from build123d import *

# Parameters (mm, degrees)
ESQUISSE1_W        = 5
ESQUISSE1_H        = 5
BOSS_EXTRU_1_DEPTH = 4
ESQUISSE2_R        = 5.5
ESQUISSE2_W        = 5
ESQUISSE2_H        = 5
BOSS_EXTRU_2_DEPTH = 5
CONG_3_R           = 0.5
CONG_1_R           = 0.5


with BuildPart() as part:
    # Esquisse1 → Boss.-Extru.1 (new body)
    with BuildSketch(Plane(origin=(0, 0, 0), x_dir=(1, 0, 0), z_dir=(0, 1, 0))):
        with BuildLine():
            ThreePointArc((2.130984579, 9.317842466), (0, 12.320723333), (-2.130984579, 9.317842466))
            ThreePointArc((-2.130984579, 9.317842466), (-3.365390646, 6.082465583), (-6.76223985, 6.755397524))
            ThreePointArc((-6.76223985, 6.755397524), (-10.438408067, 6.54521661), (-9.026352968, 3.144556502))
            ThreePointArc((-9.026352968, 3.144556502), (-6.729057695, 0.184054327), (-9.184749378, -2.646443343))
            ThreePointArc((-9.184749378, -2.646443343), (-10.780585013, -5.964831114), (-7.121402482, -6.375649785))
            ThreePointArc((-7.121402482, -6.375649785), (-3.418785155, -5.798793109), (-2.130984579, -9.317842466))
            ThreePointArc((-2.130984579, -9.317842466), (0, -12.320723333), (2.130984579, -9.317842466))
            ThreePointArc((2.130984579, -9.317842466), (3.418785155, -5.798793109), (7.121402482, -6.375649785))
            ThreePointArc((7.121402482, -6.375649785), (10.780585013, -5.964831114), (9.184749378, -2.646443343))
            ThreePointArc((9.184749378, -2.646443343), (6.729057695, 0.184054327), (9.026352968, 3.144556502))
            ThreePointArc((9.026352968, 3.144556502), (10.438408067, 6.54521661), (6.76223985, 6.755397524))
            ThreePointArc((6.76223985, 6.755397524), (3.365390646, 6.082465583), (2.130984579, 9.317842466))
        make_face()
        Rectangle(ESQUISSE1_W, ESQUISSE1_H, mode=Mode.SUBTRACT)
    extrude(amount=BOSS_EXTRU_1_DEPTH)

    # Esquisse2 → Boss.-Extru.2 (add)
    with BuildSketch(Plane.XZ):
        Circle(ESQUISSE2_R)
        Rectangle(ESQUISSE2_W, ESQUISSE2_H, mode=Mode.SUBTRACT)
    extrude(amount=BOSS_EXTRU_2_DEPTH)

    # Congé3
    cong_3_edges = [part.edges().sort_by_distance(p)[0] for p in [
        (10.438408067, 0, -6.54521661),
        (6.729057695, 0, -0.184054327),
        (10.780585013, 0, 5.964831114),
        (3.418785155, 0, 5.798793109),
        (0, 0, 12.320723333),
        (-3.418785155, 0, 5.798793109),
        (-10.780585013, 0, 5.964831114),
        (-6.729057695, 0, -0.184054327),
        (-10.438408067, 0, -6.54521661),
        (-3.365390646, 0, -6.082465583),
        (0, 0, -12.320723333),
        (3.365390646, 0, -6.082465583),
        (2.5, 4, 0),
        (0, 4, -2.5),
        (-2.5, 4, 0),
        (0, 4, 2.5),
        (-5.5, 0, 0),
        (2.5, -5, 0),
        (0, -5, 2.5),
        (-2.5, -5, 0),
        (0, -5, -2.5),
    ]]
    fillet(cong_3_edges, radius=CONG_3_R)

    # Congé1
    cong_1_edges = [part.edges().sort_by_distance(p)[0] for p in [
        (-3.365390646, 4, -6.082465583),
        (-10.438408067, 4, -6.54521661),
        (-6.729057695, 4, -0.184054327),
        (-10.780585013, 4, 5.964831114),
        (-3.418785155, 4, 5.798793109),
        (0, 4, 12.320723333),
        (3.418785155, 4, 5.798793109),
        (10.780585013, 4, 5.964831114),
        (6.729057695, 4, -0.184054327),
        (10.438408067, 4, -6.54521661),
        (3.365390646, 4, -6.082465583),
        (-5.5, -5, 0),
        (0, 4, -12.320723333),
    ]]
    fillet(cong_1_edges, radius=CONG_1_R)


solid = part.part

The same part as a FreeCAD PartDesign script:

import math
import FreeCAD as App
import Part
import Sketcher
from FreeCAD import Vector


def edges_at(feature, points):
    """Names of the edges that pass closest to the given points."""
    edges = feature.Shape.Edges
    near = lambda p: min(range(len(edges)), key=lambda i: edges[i].distToShape(Part.Vertex(*p))[0])
    return sorted({f"Edge{near(p) + 1}" for p in points})


def add_polygon(sketch, points):
    """Adds a closed chain of lines whose ends are joined by coincident constraints."""
    first, n = sketch.GeometryCount, len(points)
    for a, b in zip(points, points[1:] + points[:1]):
        sketch.addGeometry(Part.LineSegment(App.Vector(*a, 0), App.Vector(*b, 0)), False)
    for i in range(n):
        sketch.addConstraint(Sketcher.Constraint("Coincident", first + i, 2, first + (i + 1) % n, 1))

doc = App.newDocument("Part")
body = doc.addObject("PartDesign::Body", "Body")

sketch1 = body.newObject("Sketcher::SketchObject", "Sketch")
sketch1.AttachmentSupport = (doc.getObject("XZ_Plane"), [""])
sketch1.MapMode = "FlatFace"
sketch1.addGeometry(Part.ArcOfCircle(Part.Circle(Vector(0, -10.1, 0), Vector(0, 0, 1), 2.3), math.radians(161), math.radians(379)), False)
sketch1.addGeometry(Part.ArcOfCircle(Part.Circle(Vector(-4.7, -8.4, 0), Vector(0, 0, 1), 2.7), math.radians(-19), math.radians(141)), False)
sketch1.addGeometry(Part.ArcOfCircle(Part.Circle(Vector(-8.5, -5.3, 0), Vector(0, 0, 1), 2.3), math.radians(103), math.radians(321)), False)
sketch1.addGeometry(Part.ArcOfCircle(Part.Circle(Vector(-9.7, -0.3, 0), Vector(0, 0, 1), 3), math.radians(-77), math.radians(80)), False)
sketch1.addGeometry(Part.ArcOfCircle(Part.Circle(Vector(-8.8, 4.9, 0), Vector(0, 0, 1), 2.3), math.radians(42), math.radians(260)), False)
sketch1.addGeometry(Part.ArcOfCircle(Part.Circle(Vector(-4.9, 8.3, 0), Vector(0, 0, 1), 3), math.radians(-138), math.radians(19)), False)
sketch1.addGeometry(Part.ArcOfCircle(Part.Circle(Vector(0, 10.1, 0), Vector(0, 0, 1), 2.3), math.radians(-19), math.radians(199)), False)
sketch1.addGeometry(Part.ArcOfCircle(Part.Circle(Vector(4.9, 8.3, 0), Vector(0, 0, 1), 3), math.radians(161), math.radians(318)), False)
sketch1.addGeometry(Part.ArcOfCircle(Part.Circle(Vector(8.8, 4.9, 0), Vector(0, 0, 1), 2.3), math.radians(-80), math.radians(138)), False)
sketch1.addGeometry(Part.ArcOfCircle(Part.Circle(Vector(9.7, -0.3, 0), Vector(0, 0, 1), 3), math.radians(100), math.radians(257)), False)
sketch1.addGeometry(Part.ArcOfCircle(Part.Circle(Vector(8.5, -5.3, 0), Vector(0, 0, 1), 2.3), math.radians(-141), math.radians(77)), False)
sketch1.addGeometry(Part.ArcOfCircle(Part.Circle(Vector(4.7, -8.4, 0), Vector(0, 0, 1), 2.7), math.radians(39), math.radians(199)), False)
add_polygon(sketch1, [(2.5, 2.5), (-2.5, 2.5), (-2.5, -2.5), (2.5, -2.5)])
sketch1.addConstraint([
    Sketcher.Constraint("Tangent", 0, 1, 1, 1),
    Sketcher.Constraint("Tangent", 1, 2, 2, 2),
    Sketcher.Constraint("Tangent", 2, 1, 3, 1),
    Sketcher.Constraint("Tangent", 3, 2, 4, 2),
    Sketcher.Constraint("Tangent", 4, 1, 5, 1),
    Sketcher.Constraint("Tangent", 5, 2, 6, 2),
    Sketcher.Constraint("Tangent", 6, 1, 7, 1),
    Sketcher.Constraint("Tangent", 7, 2, 8, 2),
    Sketcher.Constraint("Tangent", 8, 1, 9, 1),
    Sketcher.Constraint("Tangent", 9, 2, 10, 2),
    Sketcher.Constraint("Tangent", 10, 1, 11, 1),
    Sketcher.Constraint("Tangent", 11, 2, 0, 2),
    Sketcher.Constraint("Horizontal", 12),
    Sketcher.Constraint("Vertical", 13),
    Sketcher.Constraint("Horizontal", 14),
    Sketcher.Constraint("Vertical", 15),
    Sketcher.Constraint("Equal", 0, 2),
    Sketcher.Constraint("Equal", 2, 4),
    Sketcher.Constraint("Equal", 3, 5),
    Sketcher.Constraint("Equal", 4, 6),
    Sketcher.Constraint("Equal", 5, 7),
    Sketcher.Constraint("Equal", 6, 8),
    Sketcher.Constraint("Equal", 7, 9),
    Sketcher.Constraint("Equal", 8, 10),
    Sketcher.Constraint("Equal", 1, 11),
    Sketcher.Constraint("Symmetric", 0, 3, 6, 3, -1, 1),
    Sketcher.Constraint("Symmetric", 12, 2, 14, 2, -1, 1),
    Sketcher.Constraint("Symmetric", 5, 3, 7, 3, -2),
    Sketcher.Constraint("Symmetric", 3, 3, 9, 3, -2),
    Sketcher.Constraint("Horizontal", 2, 3, 10, 3),
    Sketcher.Constraint("Vertical", 0, 1, 5, 2),
    Sketcher.Constraint("Equal", 14, 13),
    Sketcher.Constraint("DistanceX", 12, 2, 12, 1, 5.0),
    Sketcher.Constraint("Radius", 1, 2.684652),
    Sketcher.Constraint("Radius", 0, 2.257564),
    Sketcher.Constraint("Radius", 3, 2.953277),
    Sketcher.Constraint("DistanceY", 0, 3, 5, 3, 18.406),
    Sketcher.Constraint("DistanceY", 2, 1, 3, 2, 5.791),
    Sketcher.Constraint("DistanceY", 5, 3, 5, 2, 0.975002),
    Sketcher.Constraint("DistanceX", 4, 3, 7, 3, 13.723901),
])
pad1 = body.newObject("PartDesign::Pad", "Pad")
pad1.Profile = sketch1
pad1.Length = 4
pad1.Reversed = True

sketch2 = body.newObject("Sketcher::SketchObject", "Sketch001")
sketch2.AttachmentSupport = (doc.getObject("XZ_Plane"), [""])
sketch2.MapMode = "FlatFace"
sketch2.addGeometry(Part.Circle(Vector(0, 0, 0), Vector(0, 0, 1), 6), False)
add_polygon(sketch2, [(2, -2), (-2, -2), (-2, 2), (2, 2)])
sketch2.addConstraint([
    Sketcher.Constraint("Horizontal", 1),
    Sketcher.Constraint("Vertical", 2),
    Sketcher.Constraint("Horizontal", 3),
    Sketcher.Constraint("Vertical", 4),
    Sketcher.Constraint("Coincident", 0, 3, -1, 1),
    Sketcher.Constraint("Symmetric", 1, 2, 3, 2, -1, 1),
    Sketcher.Constraint("Equal", 3, 2),
    Sketcher.Constraint("Diameter", 0, 11.0),
    Sketcher.Constraint("DistanceX", 1, 2, 1, 1, 5.0),
])
pad2 = body.newObject("PartDesign::Pad", "Pad001")
pad2.Profile = sketch2
pad2.Length = 5
doc.recompute()

fillet = body.newObject("PartDesign::Fillet", "Fillet")
fillet.Base = (pad2, edges_at(pad2, [
    (10.438, 0, -6.545),
    (6.729, 0, -0.184),
    (10.781, 0, 5.965),
    (3.419, 0, 5.799),
    (0, 0, 12.321),
    (-3.419, 0, 5.799),
    (-10.781, 0, 5.965),
    (-6.729, 0, -0.184),
    (-10.438, 0, -6.545),
    (-3.365, 0, -6.082),
    (0, 0, -12.321),
    (3.365, 0, -6.082),
    (2.5, 4, 0),
    (0, 4, -2.5),
    (-2.5, 4, 0),
    (0, 4, 2.5),
    (-5.5, 0, 0),
    (2.5, -5, 0),
    (0, -5, 2.5),
    (-2.5, -5, 0),
    (0, -5, -2.5),
]))
fillet.Radius = 0.5
doc.recompute()

fillet2 = body.newObject("PartDesign::Fillet", "Fillet001")
fillet2.Base = (fillet, edges_at(fillet, [
    (-3.365, 4, -6.082),
    (-10.438, 4, -6.545),
    (-6.729, 4, -0.184),
    (-10.781, 4, 5.965),
    (-3.419, 4, 5.799),
    (0, 4, 12.321),
    (3.419, 4, 5.799),
    (10.781, 4, 5.965),
    (6.729, 4, -0.184),
    (10.438, 4, -6.545),
    (3.365, 4, -6.082),
    (-5.5, -5, 0),
    (0, 4, -12.321),
]))
fillet2.Radius = 0.5

doc.recompute()
